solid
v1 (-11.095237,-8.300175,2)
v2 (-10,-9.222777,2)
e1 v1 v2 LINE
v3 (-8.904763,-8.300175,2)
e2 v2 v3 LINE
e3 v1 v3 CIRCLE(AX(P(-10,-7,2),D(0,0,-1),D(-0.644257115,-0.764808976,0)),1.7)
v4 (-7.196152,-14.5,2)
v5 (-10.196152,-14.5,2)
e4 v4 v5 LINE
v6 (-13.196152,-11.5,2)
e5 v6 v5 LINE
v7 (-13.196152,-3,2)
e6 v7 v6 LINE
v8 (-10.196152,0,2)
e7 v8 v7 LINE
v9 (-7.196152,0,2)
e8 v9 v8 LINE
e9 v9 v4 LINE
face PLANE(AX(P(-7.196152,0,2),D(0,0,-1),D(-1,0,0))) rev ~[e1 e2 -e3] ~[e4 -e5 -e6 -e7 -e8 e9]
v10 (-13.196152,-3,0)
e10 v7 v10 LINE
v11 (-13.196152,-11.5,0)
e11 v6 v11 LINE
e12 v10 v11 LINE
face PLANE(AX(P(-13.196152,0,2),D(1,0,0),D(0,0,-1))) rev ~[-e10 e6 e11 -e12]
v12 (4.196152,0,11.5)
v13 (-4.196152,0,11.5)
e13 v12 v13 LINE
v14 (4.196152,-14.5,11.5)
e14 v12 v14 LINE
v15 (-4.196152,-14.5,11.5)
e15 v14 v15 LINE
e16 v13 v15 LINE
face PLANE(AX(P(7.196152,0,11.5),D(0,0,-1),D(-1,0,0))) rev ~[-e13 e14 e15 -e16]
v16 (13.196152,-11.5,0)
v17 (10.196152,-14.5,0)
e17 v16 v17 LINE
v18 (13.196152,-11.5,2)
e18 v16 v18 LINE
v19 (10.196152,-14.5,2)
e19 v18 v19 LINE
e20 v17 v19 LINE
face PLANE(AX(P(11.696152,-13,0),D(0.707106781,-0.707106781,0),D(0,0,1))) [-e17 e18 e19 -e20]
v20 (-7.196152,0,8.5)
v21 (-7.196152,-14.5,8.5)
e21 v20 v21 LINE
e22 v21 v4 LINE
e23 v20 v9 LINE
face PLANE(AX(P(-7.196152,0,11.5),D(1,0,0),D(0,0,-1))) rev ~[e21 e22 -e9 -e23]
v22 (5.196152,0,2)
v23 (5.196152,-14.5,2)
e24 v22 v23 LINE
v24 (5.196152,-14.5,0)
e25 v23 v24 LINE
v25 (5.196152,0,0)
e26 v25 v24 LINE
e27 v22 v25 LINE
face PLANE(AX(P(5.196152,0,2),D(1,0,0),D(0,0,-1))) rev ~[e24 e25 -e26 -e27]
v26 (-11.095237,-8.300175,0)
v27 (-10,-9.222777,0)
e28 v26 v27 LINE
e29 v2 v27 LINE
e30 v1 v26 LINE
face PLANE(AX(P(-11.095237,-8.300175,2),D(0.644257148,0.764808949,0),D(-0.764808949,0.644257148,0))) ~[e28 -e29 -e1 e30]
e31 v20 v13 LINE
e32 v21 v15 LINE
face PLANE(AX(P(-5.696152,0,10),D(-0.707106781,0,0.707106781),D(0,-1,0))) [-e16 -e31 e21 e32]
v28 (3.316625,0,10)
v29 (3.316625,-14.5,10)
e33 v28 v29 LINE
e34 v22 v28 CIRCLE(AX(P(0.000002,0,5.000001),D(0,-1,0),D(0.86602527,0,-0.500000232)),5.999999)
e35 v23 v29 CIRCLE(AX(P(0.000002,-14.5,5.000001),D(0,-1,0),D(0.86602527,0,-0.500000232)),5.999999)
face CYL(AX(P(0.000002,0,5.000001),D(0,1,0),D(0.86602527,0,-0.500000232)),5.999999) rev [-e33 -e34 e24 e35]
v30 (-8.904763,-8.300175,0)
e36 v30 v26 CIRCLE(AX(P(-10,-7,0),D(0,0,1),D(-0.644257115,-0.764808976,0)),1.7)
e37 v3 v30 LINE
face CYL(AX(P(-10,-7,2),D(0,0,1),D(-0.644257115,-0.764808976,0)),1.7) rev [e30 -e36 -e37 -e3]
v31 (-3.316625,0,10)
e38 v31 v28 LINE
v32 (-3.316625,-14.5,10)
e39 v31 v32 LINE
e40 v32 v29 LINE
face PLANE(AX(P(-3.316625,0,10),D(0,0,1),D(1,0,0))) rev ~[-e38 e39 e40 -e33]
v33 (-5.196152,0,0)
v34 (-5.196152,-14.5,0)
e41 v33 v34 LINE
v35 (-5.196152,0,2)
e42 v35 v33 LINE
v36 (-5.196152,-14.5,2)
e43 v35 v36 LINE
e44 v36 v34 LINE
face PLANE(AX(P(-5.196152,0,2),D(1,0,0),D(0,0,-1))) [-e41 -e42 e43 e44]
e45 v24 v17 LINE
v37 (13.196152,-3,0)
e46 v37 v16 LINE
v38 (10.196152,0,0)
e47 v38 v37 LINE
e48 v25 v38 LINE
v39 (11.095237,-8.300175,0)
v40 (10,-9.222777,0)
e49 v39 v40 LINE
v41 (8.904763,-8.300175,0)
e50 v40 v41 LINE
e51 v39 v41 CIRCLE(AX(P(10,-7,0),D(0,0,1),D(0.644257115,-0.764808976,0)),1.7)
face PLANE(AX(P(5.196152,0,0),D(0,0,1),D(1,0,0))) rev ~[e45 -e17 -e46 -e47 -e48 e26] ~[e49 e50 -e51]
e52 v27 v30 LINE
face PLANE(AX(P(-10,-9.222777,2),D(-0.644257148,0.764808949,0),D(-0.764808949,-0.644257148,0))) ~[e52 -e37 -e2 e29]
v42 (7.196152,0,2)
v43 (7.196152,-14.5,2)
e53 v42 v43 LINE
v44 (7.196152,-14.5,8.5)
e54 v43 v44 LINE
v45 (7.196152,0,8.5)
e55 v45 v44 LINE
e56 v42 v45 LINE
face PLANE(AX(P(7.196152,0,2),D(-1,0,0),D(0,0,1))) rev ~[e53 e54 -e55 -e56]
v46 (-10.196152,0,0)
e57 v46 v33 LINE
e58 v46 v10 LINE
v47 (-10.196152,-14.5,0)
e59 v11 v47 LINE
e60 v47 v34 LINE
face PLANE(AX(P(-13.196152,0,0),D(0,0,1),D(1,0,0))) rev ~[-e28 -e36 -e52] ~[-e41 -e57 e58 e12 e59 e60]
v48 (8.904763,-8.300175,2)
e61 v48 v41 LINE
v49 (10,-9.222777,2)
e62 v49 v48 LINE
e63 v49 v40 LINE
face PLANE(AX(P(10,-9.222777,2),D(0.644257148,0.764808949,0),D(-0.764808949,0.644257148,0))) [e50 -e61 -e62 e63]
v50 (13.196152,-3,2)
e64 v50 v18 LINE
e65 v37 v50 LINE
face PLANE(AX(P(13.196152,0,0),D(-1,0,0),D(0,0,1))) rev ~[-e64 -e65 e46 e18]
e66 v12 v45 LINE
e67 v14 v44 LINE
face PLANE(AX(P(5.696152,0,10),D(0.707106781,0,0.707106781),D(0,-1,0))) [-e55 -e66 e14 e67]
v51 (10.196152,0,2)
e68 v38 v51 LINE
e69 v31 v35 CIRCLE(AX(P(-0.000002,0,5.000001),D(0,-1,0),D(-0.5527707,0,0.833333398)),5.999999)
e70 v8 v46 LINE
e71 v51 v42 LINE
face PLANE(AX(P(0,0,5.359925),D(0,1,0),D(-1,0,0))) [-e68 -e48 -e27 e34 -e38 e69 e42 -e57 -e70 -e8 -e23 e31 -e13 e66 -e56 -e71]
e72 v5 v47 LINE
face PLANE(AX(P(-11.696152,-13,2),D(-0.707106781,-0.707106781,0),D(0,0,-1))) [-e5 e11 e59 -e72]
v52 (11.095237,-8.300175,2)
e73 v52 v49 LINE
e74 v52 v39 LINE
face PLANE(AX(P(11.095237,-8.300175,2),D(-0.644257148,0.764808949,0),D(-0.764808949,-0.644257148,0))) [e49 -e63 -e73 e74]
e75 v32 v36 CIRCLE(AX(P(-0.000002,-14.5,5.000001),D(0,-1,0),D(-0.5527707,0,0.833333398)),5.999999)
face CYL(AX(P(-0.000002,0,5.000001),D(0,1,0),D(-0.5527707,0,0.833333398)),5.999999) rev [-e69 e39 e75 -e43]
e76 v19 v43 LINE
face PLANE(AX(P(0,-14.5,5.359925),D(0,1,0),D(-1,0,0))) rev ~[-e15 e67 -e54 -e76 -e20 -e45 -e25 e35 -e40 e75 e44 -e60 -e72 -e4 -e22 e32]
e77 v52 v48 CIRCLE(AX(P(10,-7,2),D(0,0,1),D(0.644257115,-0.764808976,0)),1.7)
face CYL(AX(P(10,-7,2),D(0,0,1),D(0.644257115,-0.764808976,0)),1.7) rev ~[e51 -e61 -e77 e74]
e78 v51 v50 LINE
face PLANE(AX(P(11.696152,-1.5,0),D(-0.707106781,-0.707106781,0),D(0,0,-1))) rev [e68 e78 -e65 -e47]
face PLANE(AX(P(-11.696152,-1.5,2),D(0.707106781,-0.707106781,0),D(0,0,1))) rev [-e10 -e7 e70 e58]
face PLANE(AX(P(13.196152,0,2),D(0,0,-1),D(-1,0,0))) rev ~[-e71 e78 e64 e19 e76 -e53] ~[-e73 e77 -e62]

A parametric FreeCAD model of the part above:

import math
import FreeCAD as App
import Part
import Sketcher
from FreeCAD import Vector
Q = App.Units.Quantity


def edges_at(feature, points):
    """Names of the edges that pass closest to the given points."""
    edges = feature.Shape.Edges
    near = lambda p: min(range(len(edges)), key=lambda i: edges[i].distToShape(Part.Vertex(*p))[0])
    return sorted({f"Edge{near(p) + 1}" for p in points})

doc = App.newDocument("Part")
body = doc.addObject("PartDesign::Body", "Body")

# Sketch on XZ plane
sketch1 = body.newObject("Sketcher::SketchObject", "Sketch")
sketch1.AttachmentSupport = (doc.getObject("XZ_Plane"), [""])
sketch1.MapMode = "FlatFace"
sketch1.addGeometry(Part.ArcOfCircle(Part.Circle(Vector(-0.000002, 5.000001, 0), Vector(0, 0, 1), 5.999999), math.radians(123.557303), math.radians(210.000015)), False)
sketch1.addGeometry(Part.LineSegment(Vector(-3.316625, 10, 0), Vector(3.316625, 10, 0)), False)
sketch1.addGeometry(Part.ArcOfCircle(Part.Circle(Vector(0.000002, 5.000001, 0), Vector(0, 0, 1), 5.999999), math.radians(-30.000015), math.radians(56.442697)), False)
sketch1.addGeometry(Part.LineSegment(Vector(5.196152, 2, 0), Vector(5.196152, 0, 0)), False)
sketch1.addGeometry(Part.LineSegment(Vector(5.196152, 0, 0), Vector(13.196152, 0, 0)), False)
sketch1.addGeometry(Part.LineSegment(Vector(13.196152, 0, 0), Vector(13.196152, 2, 0)), False)
sketch1.addGeometry(Part.LineSegment(Vector(13.196152, 2, 0), Vector(7.196152, 2, 0)), False)
sketch1.addGeometry(Part.LineSegment(Vector(7.196152, 2, 0), Vector(7.196152, 11.5, 0)), False)
sketch1.addGeometry(Part.LineSegment(Vector(7.196152, 11.5, 0), Vector(-7.196152, 11.5, 0)), False)
sketch1.addGeometry(Part.LineSegment(Vector(-7.196152, 11.5, 0), Vector(-7.196152, 2, 0)), False)
sketch1.addGeometry(Part.LineSegment(Vector(-7.196152, 2, 0), Vector(-13.196152, 2, 0)), False)
sketch1.addGeometry(Part.LineSegment(Vector(-13.196152, 2, 0), Vector(-13.196152, 0, 0)), False)
sketch1.addGeometry(Part.LineSegment(Vector(-13.196152, 0, 0), Vector(-5.196152, 0, 0)), False)
sketch1.addGeometry(Part.LineSegment(Vector(-5.196152, 0, 0), Vector(-5.196152, 2, 0)), False)
sketch1.addConstraint(Sketcher.Constraint("Coincident", 0, 1, 1, 1))
sketch1.addConstraint(Sketcher.Constraint("Coincident", 1, 2, 2, 2))
sketch1.addConstraint(Sketcher.Constraint("Coincident", 2, 1, 3, 1))
sketch1.addConstraint(Sketcher.Constraint("Coincident", 3, 2, 4, 1))
sketch1.addConstraint(Sketcher.Constraint("Coincident", 4, 2, 5, 1))
sketch1.addConstraint(Sketcher.Constraint("Coincident", 5, 2, 6, 1))
sketch1.addConstraint(Sketcher.Constraint("Coincident", 6, 2, 7, 1))
sketch1.addConstraint(Sketcher.Constraint("Coincident", 7, 2, 8, 1))
sketch1.addConstraint(Sketcher.Constraint("Coincident", 8, 2, 9, 1))
sketch1.addConstraint(Sketcher.Constraint("Coincident", 9, 2, 10, 1))
sketch1.addConstraint(Sketcher.Constraint("Coincident", 10, 2, 11, 1))
sketch1.addConstraint(Sketcher.Constraint("Coincident", 11, 2, 12, 1))
sketch1.addConstraint(Sketcher.Constraint("Coincident", 12, 2, 13, 1))
sketch1.addConstraint(Sketcher.Constraint("Coincident", 13, 2, 0, 2))
sketch1.addConstraint(Sketcher.Constraint("Horizontal", 1))
sketch1.addConstraint(Sketcher.Constraint("Vertical", 3))
sketch1.addConstraint(Sketcher.Constraint("Horizontal", 4))
sketch1.addConstraint(Sketcher.Constraint("Vertical", 5))
sketch1.addConstraint(Sketcher.Constraint("Horizontal", 6))
sketch1.addConstraint(Sketcher.Constraint("Vertical", 7))
sketch1.addConstraint(Sketcher.Constraint("Horizontal", 8))
sketch1.addConstraint(Sketcher.Constraint("Vertical", 9))
sketch1.addConstraint(Sketcher.Constraint("Horizontal", 10))
sketch1.addConstraint(Sketcher.Constraint("Vertical", 11))
sketch1.addConstraint(Sketcher.Constraint("Horizontal", 12))
sketch1.addConstraint(Sketcher.Constraint("Vertical", 13))
sketch1.addConstraint(Sketcher.Constraint("Coincident", 2, 3, 0, 3))
sketch1.addConstraint(Sketcher.Constraint("Equal", 0, 2))
sketch1.addConstraint(Sketcher.Constraint("Symmetric", 4, 2, 11, 2, -1, 1))
sketch1.addConstraint(Sketcher.Constraint("Symmetric", 6, 2, 9, 2, -2))
sketch1.addConstraint(Sketcher.Constraint("Symmetric", 3, 2, 12, 2, -2))
sketch1.addConstraint(Sketcher.Constraint("PointOnObject", 0, 3, -2))
sketch1.addConstraint(Sketcher.Constraint("Horizontal", 2, 1, 5, 2))
sketch1.addConstraint(Sketcher.Constraint("Radius", 0, 5.999999))
sketch1.addConstraint(Sketcher.Constraint("DistanceX", 4, 1, 4, 2, 8.0))
sketch1.addConstraint(Sketcher.Constraint("DistanceX", 6, 2, 6, 1, 6.0))
sketch1.addConstraint(Sketcher.Constraint("DistanceY", 3, 2, 3, 1, 2.0))
sketch1.addConstraint(Sketcher.Constraint("DistanceY", 7, 1, 7, 2, 9.5))
sketch1.addConstraint(Sketcher.Constraint("DistanceY", -1, 1, 0, 3, 5.000001))
sketch1.addConstraint(Sketcher.Constraint("DistanceY", -1, 1, 0, 1, 10.0))
pad1 = body.newObject("PartDesign::Pad", "Pad")
pad1.Profile = sketch1
pad1.Length = 14.5

# Sketch on XY plane
sketch2 = body.newObject("Sketcher::SketchObject", "Sketch001")
sketch2.AttachmentSupport = (doc.getObject("XY_Plane"), [""])
sketch2.MapMode = "FlatFace"
sketch2.AttachmentOffset = App.Placement(Vector(0, 0, 2), App.Rotation())
sketch2.addGeometry(Part.ArcOfCircle(Part.Circle(Vector(10, -7, 0), Vector(0, 0, 1), 1.7), math.radians(-49.890001), math.radians(229.890001)), False)
sketch2.addGeometry(Part.LineSegment(Vector(8.904763, -8.300175, 0), Vector(10, -9.222777, 0)), False)
sketch2.addGeometry(Part.LineSegment(Vector(10, -9.222777, 0), Vector(11.095237, -8.300175, 0)), False)
sketch2.addConstraint(Sketcher.Constraint("Tangent", 0, 2, 1, 1))
sketch2.addConstraint(Sketcher.Constraint("Coincident", 1, 2, 2, 1))
sketch2.addConstraint(Sketcher.Constraint("Tangent", 2, 2, 0, 1))
sketch2.addConstraint(Sketcher.Constraint("Horizontal", 0, 2, 2, 2))
sketch2.addConstraint(Sketcher.Constraint("Radius", 0, 1.7))
sketch2.addConstraint(Sketcher.Constraint("DistanceX", -1, 1, 0, 3, 10.0))
sketch2.addConstraint(Sketcher.Constraint("DistanceY", 0, 3, -1, 1, 7.0))
sketch2.addConstraint(Sketcher.Constraint("Angle", 1, Q("-40.110002 deg")))
pocket1 = body.newObject("PartDesign::Pocket", "Pocket")
pocket1.Profile = sketch2
pocket1.Length = 5
doc.recompute()

mirrored = body.newObject("PartDesign::Mirrored", "Mirrored")
mirrored.Originals = [pocket1]
mirrored.MirrorPlane = (doc.getObject("YZ_Plane"), [""])
body.Tip = mirrored
doc.recompute()

chamfer = body.newObject("PartDesign::Chamfer", "Chamfer")
chamfer.Base = (mirrored, edges_at(mirrored, [(-7.196, -7.25, 11.5), (7.196, -7.25, 11.5)]))
chamfer.Size = 3
doc.recompute()

chamfer2 = body.newObject("PartDesign::Chamfer", "Chamfer001")
chamfer2.Base = (chamfer, edges_at(chamfer, [
    (-13.196, -14.5, 1),
    (13.196, -14.5, 1),
    (13.196, 0, 1),
    (-13.196, 0, 1),
]))
chamfer2.Size = 3

doc.recompute()
